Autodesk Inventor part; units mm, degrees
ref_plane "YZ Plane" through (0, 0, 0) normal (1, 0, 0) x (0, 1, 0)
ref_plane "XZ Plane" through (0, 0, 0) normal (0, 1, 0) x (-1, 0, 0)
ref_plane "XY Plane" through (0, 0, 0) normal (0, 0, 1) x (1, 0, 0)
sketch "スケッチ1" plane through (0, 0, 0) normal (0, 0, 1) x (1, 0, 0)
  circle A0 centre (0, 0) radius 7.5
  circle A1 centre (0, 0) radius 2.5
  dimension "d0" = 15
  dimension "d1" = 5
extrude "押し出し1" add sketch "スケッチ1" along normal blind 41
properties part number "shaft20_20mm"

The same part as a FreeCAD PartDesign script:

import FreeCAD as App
import Part
import Sketcher
Q = App.Units.Quantity

doc = App.newDocument("Part")
body = doc.addObject("PartDesign::Body", "Body")

# Sketch on XY plane
sketch1 = doc.addObject("Sketcher::SketchObject", "Sketch")
body.addObject(sketch1)
sketch1.AttachmentSupport = (doc.XY_Plane, [""])
sketch1.MapMode = "FlatFace"
sketch1.addGeometry(Part.Circle(App.Vector(0, 0, 0), App.Vector(0, 0, 1), 7.5), False)
sketch1.addGeometry(Part.Circle(App.Vector(0, 0, 0), App.Vector(0, 0, 1), 2.5), False)
sketch1.addConstraint(Sketcher.Constraint("Coincident", 0, 3, -1, 1))
sketch1.addConstraint(Sketcher.Constraint("Coincident", 1, 3, -1, 1))
sketch1.addConstraint(Sketcher.Constraint("Diameter", 0, Q("15 mm")))
sketch1.addConstraint(Sketcher.Constraint("Diameter", 1, Q("5 mm")))
pad1 = doc.addObject("PartDesign::Pad", "Pad")
body.addObject(pad1)
pad1.Profile = sketch1
pad1.Length = 41

doc.recompute()
